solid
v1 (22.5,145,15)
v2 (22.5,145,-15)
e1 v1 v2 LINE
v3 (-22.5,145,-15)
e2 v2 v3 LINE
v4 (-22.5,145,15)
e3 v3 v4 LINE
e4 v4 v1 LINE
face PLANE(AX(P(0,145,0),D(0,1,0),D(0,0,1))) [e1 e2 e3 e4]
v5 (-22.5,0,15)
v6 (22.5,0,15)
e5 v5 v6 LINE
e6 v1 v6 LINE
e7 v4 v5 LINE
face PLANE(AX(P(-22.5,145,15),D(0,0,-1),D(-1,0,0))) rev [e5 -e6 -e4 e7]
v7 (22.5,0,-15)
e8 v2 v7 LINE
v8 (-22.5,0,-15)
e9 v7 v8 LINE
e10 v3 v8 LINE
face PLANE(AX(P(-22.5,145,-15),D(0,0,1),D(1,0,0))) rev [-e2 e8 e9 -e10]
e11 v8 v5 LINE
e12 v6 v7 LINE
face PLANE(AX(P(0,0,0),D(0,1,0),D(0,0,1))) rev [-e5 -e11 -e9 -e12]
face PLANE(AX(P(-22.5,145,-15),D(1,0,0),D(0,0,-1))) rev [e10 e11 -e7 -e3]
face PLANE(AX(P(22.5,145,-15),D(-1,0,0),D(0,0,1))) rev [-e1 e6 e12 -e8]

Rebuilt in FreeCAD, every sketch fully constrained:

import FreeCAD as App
import Part
import Sketcher
from FreeCAD import Vector
Q = App.Units.Quantity


def add_polygon(sketch, points):
    """Adds a closed chain of lines whose ends are joined by coincident constraints."""
    first, n = sketch.GeometryCount, len(points)
    for a, b in zip(points, points[1:] + points[:1]):
        sketch.addGeometry(Part.LineSegment(App.Vector(*a, 0), App.Vector(*b, 0)), False)
    for i in range(n):
        sketch.addConstraint(Sketcher.Constraint("Coincident", first + i, 2, first + (i + 1) % n, 1))

doc = App.newDocument("Part")
body = doc.addObject("PartDesign::Body", "Body")

# Sketch on XZ plane
sketch1 = doc.addObject("Sketcher::SketchObject", "Sketch")
body.addObject(sketch1)
sketch1.AttachmentSupport = (doc.XZ_Plane, [""])
sketch1.MapMode = "FlatFace"
add_polygon(sketch1, [(-22.5, -15), (-22.5, 15), (22.5, 15), (22.5, -15)])  # lines 0-3
sketch1.addConstraint([
    Sketcher.Constraint("Vertical", 0),
    Sketcher.Constraint("Horizontal", 1),
    Sketcher.Constraint("Vertical", 2),
    Sketcher.Constraint("Horizontal", 3),
    Sketcher.Constraint("Symmetric", 0, 2, 2, 2, -1, 1),
    Sketcher.Constraint("DistanceX", 1, 1, 1, 2, Q("45 mm")),
    Sketcher.Constraint("DistanceY", 0, 1, 0, 2, Q("30 mm")),
])
pad1 = doc.addObject("PartDesign::Pad", "Pad")
body.addObject(pad1)
pad1.Profile = sketch1
pad1.Length = 145
pad1.Reversed = True

doc.recompute()
